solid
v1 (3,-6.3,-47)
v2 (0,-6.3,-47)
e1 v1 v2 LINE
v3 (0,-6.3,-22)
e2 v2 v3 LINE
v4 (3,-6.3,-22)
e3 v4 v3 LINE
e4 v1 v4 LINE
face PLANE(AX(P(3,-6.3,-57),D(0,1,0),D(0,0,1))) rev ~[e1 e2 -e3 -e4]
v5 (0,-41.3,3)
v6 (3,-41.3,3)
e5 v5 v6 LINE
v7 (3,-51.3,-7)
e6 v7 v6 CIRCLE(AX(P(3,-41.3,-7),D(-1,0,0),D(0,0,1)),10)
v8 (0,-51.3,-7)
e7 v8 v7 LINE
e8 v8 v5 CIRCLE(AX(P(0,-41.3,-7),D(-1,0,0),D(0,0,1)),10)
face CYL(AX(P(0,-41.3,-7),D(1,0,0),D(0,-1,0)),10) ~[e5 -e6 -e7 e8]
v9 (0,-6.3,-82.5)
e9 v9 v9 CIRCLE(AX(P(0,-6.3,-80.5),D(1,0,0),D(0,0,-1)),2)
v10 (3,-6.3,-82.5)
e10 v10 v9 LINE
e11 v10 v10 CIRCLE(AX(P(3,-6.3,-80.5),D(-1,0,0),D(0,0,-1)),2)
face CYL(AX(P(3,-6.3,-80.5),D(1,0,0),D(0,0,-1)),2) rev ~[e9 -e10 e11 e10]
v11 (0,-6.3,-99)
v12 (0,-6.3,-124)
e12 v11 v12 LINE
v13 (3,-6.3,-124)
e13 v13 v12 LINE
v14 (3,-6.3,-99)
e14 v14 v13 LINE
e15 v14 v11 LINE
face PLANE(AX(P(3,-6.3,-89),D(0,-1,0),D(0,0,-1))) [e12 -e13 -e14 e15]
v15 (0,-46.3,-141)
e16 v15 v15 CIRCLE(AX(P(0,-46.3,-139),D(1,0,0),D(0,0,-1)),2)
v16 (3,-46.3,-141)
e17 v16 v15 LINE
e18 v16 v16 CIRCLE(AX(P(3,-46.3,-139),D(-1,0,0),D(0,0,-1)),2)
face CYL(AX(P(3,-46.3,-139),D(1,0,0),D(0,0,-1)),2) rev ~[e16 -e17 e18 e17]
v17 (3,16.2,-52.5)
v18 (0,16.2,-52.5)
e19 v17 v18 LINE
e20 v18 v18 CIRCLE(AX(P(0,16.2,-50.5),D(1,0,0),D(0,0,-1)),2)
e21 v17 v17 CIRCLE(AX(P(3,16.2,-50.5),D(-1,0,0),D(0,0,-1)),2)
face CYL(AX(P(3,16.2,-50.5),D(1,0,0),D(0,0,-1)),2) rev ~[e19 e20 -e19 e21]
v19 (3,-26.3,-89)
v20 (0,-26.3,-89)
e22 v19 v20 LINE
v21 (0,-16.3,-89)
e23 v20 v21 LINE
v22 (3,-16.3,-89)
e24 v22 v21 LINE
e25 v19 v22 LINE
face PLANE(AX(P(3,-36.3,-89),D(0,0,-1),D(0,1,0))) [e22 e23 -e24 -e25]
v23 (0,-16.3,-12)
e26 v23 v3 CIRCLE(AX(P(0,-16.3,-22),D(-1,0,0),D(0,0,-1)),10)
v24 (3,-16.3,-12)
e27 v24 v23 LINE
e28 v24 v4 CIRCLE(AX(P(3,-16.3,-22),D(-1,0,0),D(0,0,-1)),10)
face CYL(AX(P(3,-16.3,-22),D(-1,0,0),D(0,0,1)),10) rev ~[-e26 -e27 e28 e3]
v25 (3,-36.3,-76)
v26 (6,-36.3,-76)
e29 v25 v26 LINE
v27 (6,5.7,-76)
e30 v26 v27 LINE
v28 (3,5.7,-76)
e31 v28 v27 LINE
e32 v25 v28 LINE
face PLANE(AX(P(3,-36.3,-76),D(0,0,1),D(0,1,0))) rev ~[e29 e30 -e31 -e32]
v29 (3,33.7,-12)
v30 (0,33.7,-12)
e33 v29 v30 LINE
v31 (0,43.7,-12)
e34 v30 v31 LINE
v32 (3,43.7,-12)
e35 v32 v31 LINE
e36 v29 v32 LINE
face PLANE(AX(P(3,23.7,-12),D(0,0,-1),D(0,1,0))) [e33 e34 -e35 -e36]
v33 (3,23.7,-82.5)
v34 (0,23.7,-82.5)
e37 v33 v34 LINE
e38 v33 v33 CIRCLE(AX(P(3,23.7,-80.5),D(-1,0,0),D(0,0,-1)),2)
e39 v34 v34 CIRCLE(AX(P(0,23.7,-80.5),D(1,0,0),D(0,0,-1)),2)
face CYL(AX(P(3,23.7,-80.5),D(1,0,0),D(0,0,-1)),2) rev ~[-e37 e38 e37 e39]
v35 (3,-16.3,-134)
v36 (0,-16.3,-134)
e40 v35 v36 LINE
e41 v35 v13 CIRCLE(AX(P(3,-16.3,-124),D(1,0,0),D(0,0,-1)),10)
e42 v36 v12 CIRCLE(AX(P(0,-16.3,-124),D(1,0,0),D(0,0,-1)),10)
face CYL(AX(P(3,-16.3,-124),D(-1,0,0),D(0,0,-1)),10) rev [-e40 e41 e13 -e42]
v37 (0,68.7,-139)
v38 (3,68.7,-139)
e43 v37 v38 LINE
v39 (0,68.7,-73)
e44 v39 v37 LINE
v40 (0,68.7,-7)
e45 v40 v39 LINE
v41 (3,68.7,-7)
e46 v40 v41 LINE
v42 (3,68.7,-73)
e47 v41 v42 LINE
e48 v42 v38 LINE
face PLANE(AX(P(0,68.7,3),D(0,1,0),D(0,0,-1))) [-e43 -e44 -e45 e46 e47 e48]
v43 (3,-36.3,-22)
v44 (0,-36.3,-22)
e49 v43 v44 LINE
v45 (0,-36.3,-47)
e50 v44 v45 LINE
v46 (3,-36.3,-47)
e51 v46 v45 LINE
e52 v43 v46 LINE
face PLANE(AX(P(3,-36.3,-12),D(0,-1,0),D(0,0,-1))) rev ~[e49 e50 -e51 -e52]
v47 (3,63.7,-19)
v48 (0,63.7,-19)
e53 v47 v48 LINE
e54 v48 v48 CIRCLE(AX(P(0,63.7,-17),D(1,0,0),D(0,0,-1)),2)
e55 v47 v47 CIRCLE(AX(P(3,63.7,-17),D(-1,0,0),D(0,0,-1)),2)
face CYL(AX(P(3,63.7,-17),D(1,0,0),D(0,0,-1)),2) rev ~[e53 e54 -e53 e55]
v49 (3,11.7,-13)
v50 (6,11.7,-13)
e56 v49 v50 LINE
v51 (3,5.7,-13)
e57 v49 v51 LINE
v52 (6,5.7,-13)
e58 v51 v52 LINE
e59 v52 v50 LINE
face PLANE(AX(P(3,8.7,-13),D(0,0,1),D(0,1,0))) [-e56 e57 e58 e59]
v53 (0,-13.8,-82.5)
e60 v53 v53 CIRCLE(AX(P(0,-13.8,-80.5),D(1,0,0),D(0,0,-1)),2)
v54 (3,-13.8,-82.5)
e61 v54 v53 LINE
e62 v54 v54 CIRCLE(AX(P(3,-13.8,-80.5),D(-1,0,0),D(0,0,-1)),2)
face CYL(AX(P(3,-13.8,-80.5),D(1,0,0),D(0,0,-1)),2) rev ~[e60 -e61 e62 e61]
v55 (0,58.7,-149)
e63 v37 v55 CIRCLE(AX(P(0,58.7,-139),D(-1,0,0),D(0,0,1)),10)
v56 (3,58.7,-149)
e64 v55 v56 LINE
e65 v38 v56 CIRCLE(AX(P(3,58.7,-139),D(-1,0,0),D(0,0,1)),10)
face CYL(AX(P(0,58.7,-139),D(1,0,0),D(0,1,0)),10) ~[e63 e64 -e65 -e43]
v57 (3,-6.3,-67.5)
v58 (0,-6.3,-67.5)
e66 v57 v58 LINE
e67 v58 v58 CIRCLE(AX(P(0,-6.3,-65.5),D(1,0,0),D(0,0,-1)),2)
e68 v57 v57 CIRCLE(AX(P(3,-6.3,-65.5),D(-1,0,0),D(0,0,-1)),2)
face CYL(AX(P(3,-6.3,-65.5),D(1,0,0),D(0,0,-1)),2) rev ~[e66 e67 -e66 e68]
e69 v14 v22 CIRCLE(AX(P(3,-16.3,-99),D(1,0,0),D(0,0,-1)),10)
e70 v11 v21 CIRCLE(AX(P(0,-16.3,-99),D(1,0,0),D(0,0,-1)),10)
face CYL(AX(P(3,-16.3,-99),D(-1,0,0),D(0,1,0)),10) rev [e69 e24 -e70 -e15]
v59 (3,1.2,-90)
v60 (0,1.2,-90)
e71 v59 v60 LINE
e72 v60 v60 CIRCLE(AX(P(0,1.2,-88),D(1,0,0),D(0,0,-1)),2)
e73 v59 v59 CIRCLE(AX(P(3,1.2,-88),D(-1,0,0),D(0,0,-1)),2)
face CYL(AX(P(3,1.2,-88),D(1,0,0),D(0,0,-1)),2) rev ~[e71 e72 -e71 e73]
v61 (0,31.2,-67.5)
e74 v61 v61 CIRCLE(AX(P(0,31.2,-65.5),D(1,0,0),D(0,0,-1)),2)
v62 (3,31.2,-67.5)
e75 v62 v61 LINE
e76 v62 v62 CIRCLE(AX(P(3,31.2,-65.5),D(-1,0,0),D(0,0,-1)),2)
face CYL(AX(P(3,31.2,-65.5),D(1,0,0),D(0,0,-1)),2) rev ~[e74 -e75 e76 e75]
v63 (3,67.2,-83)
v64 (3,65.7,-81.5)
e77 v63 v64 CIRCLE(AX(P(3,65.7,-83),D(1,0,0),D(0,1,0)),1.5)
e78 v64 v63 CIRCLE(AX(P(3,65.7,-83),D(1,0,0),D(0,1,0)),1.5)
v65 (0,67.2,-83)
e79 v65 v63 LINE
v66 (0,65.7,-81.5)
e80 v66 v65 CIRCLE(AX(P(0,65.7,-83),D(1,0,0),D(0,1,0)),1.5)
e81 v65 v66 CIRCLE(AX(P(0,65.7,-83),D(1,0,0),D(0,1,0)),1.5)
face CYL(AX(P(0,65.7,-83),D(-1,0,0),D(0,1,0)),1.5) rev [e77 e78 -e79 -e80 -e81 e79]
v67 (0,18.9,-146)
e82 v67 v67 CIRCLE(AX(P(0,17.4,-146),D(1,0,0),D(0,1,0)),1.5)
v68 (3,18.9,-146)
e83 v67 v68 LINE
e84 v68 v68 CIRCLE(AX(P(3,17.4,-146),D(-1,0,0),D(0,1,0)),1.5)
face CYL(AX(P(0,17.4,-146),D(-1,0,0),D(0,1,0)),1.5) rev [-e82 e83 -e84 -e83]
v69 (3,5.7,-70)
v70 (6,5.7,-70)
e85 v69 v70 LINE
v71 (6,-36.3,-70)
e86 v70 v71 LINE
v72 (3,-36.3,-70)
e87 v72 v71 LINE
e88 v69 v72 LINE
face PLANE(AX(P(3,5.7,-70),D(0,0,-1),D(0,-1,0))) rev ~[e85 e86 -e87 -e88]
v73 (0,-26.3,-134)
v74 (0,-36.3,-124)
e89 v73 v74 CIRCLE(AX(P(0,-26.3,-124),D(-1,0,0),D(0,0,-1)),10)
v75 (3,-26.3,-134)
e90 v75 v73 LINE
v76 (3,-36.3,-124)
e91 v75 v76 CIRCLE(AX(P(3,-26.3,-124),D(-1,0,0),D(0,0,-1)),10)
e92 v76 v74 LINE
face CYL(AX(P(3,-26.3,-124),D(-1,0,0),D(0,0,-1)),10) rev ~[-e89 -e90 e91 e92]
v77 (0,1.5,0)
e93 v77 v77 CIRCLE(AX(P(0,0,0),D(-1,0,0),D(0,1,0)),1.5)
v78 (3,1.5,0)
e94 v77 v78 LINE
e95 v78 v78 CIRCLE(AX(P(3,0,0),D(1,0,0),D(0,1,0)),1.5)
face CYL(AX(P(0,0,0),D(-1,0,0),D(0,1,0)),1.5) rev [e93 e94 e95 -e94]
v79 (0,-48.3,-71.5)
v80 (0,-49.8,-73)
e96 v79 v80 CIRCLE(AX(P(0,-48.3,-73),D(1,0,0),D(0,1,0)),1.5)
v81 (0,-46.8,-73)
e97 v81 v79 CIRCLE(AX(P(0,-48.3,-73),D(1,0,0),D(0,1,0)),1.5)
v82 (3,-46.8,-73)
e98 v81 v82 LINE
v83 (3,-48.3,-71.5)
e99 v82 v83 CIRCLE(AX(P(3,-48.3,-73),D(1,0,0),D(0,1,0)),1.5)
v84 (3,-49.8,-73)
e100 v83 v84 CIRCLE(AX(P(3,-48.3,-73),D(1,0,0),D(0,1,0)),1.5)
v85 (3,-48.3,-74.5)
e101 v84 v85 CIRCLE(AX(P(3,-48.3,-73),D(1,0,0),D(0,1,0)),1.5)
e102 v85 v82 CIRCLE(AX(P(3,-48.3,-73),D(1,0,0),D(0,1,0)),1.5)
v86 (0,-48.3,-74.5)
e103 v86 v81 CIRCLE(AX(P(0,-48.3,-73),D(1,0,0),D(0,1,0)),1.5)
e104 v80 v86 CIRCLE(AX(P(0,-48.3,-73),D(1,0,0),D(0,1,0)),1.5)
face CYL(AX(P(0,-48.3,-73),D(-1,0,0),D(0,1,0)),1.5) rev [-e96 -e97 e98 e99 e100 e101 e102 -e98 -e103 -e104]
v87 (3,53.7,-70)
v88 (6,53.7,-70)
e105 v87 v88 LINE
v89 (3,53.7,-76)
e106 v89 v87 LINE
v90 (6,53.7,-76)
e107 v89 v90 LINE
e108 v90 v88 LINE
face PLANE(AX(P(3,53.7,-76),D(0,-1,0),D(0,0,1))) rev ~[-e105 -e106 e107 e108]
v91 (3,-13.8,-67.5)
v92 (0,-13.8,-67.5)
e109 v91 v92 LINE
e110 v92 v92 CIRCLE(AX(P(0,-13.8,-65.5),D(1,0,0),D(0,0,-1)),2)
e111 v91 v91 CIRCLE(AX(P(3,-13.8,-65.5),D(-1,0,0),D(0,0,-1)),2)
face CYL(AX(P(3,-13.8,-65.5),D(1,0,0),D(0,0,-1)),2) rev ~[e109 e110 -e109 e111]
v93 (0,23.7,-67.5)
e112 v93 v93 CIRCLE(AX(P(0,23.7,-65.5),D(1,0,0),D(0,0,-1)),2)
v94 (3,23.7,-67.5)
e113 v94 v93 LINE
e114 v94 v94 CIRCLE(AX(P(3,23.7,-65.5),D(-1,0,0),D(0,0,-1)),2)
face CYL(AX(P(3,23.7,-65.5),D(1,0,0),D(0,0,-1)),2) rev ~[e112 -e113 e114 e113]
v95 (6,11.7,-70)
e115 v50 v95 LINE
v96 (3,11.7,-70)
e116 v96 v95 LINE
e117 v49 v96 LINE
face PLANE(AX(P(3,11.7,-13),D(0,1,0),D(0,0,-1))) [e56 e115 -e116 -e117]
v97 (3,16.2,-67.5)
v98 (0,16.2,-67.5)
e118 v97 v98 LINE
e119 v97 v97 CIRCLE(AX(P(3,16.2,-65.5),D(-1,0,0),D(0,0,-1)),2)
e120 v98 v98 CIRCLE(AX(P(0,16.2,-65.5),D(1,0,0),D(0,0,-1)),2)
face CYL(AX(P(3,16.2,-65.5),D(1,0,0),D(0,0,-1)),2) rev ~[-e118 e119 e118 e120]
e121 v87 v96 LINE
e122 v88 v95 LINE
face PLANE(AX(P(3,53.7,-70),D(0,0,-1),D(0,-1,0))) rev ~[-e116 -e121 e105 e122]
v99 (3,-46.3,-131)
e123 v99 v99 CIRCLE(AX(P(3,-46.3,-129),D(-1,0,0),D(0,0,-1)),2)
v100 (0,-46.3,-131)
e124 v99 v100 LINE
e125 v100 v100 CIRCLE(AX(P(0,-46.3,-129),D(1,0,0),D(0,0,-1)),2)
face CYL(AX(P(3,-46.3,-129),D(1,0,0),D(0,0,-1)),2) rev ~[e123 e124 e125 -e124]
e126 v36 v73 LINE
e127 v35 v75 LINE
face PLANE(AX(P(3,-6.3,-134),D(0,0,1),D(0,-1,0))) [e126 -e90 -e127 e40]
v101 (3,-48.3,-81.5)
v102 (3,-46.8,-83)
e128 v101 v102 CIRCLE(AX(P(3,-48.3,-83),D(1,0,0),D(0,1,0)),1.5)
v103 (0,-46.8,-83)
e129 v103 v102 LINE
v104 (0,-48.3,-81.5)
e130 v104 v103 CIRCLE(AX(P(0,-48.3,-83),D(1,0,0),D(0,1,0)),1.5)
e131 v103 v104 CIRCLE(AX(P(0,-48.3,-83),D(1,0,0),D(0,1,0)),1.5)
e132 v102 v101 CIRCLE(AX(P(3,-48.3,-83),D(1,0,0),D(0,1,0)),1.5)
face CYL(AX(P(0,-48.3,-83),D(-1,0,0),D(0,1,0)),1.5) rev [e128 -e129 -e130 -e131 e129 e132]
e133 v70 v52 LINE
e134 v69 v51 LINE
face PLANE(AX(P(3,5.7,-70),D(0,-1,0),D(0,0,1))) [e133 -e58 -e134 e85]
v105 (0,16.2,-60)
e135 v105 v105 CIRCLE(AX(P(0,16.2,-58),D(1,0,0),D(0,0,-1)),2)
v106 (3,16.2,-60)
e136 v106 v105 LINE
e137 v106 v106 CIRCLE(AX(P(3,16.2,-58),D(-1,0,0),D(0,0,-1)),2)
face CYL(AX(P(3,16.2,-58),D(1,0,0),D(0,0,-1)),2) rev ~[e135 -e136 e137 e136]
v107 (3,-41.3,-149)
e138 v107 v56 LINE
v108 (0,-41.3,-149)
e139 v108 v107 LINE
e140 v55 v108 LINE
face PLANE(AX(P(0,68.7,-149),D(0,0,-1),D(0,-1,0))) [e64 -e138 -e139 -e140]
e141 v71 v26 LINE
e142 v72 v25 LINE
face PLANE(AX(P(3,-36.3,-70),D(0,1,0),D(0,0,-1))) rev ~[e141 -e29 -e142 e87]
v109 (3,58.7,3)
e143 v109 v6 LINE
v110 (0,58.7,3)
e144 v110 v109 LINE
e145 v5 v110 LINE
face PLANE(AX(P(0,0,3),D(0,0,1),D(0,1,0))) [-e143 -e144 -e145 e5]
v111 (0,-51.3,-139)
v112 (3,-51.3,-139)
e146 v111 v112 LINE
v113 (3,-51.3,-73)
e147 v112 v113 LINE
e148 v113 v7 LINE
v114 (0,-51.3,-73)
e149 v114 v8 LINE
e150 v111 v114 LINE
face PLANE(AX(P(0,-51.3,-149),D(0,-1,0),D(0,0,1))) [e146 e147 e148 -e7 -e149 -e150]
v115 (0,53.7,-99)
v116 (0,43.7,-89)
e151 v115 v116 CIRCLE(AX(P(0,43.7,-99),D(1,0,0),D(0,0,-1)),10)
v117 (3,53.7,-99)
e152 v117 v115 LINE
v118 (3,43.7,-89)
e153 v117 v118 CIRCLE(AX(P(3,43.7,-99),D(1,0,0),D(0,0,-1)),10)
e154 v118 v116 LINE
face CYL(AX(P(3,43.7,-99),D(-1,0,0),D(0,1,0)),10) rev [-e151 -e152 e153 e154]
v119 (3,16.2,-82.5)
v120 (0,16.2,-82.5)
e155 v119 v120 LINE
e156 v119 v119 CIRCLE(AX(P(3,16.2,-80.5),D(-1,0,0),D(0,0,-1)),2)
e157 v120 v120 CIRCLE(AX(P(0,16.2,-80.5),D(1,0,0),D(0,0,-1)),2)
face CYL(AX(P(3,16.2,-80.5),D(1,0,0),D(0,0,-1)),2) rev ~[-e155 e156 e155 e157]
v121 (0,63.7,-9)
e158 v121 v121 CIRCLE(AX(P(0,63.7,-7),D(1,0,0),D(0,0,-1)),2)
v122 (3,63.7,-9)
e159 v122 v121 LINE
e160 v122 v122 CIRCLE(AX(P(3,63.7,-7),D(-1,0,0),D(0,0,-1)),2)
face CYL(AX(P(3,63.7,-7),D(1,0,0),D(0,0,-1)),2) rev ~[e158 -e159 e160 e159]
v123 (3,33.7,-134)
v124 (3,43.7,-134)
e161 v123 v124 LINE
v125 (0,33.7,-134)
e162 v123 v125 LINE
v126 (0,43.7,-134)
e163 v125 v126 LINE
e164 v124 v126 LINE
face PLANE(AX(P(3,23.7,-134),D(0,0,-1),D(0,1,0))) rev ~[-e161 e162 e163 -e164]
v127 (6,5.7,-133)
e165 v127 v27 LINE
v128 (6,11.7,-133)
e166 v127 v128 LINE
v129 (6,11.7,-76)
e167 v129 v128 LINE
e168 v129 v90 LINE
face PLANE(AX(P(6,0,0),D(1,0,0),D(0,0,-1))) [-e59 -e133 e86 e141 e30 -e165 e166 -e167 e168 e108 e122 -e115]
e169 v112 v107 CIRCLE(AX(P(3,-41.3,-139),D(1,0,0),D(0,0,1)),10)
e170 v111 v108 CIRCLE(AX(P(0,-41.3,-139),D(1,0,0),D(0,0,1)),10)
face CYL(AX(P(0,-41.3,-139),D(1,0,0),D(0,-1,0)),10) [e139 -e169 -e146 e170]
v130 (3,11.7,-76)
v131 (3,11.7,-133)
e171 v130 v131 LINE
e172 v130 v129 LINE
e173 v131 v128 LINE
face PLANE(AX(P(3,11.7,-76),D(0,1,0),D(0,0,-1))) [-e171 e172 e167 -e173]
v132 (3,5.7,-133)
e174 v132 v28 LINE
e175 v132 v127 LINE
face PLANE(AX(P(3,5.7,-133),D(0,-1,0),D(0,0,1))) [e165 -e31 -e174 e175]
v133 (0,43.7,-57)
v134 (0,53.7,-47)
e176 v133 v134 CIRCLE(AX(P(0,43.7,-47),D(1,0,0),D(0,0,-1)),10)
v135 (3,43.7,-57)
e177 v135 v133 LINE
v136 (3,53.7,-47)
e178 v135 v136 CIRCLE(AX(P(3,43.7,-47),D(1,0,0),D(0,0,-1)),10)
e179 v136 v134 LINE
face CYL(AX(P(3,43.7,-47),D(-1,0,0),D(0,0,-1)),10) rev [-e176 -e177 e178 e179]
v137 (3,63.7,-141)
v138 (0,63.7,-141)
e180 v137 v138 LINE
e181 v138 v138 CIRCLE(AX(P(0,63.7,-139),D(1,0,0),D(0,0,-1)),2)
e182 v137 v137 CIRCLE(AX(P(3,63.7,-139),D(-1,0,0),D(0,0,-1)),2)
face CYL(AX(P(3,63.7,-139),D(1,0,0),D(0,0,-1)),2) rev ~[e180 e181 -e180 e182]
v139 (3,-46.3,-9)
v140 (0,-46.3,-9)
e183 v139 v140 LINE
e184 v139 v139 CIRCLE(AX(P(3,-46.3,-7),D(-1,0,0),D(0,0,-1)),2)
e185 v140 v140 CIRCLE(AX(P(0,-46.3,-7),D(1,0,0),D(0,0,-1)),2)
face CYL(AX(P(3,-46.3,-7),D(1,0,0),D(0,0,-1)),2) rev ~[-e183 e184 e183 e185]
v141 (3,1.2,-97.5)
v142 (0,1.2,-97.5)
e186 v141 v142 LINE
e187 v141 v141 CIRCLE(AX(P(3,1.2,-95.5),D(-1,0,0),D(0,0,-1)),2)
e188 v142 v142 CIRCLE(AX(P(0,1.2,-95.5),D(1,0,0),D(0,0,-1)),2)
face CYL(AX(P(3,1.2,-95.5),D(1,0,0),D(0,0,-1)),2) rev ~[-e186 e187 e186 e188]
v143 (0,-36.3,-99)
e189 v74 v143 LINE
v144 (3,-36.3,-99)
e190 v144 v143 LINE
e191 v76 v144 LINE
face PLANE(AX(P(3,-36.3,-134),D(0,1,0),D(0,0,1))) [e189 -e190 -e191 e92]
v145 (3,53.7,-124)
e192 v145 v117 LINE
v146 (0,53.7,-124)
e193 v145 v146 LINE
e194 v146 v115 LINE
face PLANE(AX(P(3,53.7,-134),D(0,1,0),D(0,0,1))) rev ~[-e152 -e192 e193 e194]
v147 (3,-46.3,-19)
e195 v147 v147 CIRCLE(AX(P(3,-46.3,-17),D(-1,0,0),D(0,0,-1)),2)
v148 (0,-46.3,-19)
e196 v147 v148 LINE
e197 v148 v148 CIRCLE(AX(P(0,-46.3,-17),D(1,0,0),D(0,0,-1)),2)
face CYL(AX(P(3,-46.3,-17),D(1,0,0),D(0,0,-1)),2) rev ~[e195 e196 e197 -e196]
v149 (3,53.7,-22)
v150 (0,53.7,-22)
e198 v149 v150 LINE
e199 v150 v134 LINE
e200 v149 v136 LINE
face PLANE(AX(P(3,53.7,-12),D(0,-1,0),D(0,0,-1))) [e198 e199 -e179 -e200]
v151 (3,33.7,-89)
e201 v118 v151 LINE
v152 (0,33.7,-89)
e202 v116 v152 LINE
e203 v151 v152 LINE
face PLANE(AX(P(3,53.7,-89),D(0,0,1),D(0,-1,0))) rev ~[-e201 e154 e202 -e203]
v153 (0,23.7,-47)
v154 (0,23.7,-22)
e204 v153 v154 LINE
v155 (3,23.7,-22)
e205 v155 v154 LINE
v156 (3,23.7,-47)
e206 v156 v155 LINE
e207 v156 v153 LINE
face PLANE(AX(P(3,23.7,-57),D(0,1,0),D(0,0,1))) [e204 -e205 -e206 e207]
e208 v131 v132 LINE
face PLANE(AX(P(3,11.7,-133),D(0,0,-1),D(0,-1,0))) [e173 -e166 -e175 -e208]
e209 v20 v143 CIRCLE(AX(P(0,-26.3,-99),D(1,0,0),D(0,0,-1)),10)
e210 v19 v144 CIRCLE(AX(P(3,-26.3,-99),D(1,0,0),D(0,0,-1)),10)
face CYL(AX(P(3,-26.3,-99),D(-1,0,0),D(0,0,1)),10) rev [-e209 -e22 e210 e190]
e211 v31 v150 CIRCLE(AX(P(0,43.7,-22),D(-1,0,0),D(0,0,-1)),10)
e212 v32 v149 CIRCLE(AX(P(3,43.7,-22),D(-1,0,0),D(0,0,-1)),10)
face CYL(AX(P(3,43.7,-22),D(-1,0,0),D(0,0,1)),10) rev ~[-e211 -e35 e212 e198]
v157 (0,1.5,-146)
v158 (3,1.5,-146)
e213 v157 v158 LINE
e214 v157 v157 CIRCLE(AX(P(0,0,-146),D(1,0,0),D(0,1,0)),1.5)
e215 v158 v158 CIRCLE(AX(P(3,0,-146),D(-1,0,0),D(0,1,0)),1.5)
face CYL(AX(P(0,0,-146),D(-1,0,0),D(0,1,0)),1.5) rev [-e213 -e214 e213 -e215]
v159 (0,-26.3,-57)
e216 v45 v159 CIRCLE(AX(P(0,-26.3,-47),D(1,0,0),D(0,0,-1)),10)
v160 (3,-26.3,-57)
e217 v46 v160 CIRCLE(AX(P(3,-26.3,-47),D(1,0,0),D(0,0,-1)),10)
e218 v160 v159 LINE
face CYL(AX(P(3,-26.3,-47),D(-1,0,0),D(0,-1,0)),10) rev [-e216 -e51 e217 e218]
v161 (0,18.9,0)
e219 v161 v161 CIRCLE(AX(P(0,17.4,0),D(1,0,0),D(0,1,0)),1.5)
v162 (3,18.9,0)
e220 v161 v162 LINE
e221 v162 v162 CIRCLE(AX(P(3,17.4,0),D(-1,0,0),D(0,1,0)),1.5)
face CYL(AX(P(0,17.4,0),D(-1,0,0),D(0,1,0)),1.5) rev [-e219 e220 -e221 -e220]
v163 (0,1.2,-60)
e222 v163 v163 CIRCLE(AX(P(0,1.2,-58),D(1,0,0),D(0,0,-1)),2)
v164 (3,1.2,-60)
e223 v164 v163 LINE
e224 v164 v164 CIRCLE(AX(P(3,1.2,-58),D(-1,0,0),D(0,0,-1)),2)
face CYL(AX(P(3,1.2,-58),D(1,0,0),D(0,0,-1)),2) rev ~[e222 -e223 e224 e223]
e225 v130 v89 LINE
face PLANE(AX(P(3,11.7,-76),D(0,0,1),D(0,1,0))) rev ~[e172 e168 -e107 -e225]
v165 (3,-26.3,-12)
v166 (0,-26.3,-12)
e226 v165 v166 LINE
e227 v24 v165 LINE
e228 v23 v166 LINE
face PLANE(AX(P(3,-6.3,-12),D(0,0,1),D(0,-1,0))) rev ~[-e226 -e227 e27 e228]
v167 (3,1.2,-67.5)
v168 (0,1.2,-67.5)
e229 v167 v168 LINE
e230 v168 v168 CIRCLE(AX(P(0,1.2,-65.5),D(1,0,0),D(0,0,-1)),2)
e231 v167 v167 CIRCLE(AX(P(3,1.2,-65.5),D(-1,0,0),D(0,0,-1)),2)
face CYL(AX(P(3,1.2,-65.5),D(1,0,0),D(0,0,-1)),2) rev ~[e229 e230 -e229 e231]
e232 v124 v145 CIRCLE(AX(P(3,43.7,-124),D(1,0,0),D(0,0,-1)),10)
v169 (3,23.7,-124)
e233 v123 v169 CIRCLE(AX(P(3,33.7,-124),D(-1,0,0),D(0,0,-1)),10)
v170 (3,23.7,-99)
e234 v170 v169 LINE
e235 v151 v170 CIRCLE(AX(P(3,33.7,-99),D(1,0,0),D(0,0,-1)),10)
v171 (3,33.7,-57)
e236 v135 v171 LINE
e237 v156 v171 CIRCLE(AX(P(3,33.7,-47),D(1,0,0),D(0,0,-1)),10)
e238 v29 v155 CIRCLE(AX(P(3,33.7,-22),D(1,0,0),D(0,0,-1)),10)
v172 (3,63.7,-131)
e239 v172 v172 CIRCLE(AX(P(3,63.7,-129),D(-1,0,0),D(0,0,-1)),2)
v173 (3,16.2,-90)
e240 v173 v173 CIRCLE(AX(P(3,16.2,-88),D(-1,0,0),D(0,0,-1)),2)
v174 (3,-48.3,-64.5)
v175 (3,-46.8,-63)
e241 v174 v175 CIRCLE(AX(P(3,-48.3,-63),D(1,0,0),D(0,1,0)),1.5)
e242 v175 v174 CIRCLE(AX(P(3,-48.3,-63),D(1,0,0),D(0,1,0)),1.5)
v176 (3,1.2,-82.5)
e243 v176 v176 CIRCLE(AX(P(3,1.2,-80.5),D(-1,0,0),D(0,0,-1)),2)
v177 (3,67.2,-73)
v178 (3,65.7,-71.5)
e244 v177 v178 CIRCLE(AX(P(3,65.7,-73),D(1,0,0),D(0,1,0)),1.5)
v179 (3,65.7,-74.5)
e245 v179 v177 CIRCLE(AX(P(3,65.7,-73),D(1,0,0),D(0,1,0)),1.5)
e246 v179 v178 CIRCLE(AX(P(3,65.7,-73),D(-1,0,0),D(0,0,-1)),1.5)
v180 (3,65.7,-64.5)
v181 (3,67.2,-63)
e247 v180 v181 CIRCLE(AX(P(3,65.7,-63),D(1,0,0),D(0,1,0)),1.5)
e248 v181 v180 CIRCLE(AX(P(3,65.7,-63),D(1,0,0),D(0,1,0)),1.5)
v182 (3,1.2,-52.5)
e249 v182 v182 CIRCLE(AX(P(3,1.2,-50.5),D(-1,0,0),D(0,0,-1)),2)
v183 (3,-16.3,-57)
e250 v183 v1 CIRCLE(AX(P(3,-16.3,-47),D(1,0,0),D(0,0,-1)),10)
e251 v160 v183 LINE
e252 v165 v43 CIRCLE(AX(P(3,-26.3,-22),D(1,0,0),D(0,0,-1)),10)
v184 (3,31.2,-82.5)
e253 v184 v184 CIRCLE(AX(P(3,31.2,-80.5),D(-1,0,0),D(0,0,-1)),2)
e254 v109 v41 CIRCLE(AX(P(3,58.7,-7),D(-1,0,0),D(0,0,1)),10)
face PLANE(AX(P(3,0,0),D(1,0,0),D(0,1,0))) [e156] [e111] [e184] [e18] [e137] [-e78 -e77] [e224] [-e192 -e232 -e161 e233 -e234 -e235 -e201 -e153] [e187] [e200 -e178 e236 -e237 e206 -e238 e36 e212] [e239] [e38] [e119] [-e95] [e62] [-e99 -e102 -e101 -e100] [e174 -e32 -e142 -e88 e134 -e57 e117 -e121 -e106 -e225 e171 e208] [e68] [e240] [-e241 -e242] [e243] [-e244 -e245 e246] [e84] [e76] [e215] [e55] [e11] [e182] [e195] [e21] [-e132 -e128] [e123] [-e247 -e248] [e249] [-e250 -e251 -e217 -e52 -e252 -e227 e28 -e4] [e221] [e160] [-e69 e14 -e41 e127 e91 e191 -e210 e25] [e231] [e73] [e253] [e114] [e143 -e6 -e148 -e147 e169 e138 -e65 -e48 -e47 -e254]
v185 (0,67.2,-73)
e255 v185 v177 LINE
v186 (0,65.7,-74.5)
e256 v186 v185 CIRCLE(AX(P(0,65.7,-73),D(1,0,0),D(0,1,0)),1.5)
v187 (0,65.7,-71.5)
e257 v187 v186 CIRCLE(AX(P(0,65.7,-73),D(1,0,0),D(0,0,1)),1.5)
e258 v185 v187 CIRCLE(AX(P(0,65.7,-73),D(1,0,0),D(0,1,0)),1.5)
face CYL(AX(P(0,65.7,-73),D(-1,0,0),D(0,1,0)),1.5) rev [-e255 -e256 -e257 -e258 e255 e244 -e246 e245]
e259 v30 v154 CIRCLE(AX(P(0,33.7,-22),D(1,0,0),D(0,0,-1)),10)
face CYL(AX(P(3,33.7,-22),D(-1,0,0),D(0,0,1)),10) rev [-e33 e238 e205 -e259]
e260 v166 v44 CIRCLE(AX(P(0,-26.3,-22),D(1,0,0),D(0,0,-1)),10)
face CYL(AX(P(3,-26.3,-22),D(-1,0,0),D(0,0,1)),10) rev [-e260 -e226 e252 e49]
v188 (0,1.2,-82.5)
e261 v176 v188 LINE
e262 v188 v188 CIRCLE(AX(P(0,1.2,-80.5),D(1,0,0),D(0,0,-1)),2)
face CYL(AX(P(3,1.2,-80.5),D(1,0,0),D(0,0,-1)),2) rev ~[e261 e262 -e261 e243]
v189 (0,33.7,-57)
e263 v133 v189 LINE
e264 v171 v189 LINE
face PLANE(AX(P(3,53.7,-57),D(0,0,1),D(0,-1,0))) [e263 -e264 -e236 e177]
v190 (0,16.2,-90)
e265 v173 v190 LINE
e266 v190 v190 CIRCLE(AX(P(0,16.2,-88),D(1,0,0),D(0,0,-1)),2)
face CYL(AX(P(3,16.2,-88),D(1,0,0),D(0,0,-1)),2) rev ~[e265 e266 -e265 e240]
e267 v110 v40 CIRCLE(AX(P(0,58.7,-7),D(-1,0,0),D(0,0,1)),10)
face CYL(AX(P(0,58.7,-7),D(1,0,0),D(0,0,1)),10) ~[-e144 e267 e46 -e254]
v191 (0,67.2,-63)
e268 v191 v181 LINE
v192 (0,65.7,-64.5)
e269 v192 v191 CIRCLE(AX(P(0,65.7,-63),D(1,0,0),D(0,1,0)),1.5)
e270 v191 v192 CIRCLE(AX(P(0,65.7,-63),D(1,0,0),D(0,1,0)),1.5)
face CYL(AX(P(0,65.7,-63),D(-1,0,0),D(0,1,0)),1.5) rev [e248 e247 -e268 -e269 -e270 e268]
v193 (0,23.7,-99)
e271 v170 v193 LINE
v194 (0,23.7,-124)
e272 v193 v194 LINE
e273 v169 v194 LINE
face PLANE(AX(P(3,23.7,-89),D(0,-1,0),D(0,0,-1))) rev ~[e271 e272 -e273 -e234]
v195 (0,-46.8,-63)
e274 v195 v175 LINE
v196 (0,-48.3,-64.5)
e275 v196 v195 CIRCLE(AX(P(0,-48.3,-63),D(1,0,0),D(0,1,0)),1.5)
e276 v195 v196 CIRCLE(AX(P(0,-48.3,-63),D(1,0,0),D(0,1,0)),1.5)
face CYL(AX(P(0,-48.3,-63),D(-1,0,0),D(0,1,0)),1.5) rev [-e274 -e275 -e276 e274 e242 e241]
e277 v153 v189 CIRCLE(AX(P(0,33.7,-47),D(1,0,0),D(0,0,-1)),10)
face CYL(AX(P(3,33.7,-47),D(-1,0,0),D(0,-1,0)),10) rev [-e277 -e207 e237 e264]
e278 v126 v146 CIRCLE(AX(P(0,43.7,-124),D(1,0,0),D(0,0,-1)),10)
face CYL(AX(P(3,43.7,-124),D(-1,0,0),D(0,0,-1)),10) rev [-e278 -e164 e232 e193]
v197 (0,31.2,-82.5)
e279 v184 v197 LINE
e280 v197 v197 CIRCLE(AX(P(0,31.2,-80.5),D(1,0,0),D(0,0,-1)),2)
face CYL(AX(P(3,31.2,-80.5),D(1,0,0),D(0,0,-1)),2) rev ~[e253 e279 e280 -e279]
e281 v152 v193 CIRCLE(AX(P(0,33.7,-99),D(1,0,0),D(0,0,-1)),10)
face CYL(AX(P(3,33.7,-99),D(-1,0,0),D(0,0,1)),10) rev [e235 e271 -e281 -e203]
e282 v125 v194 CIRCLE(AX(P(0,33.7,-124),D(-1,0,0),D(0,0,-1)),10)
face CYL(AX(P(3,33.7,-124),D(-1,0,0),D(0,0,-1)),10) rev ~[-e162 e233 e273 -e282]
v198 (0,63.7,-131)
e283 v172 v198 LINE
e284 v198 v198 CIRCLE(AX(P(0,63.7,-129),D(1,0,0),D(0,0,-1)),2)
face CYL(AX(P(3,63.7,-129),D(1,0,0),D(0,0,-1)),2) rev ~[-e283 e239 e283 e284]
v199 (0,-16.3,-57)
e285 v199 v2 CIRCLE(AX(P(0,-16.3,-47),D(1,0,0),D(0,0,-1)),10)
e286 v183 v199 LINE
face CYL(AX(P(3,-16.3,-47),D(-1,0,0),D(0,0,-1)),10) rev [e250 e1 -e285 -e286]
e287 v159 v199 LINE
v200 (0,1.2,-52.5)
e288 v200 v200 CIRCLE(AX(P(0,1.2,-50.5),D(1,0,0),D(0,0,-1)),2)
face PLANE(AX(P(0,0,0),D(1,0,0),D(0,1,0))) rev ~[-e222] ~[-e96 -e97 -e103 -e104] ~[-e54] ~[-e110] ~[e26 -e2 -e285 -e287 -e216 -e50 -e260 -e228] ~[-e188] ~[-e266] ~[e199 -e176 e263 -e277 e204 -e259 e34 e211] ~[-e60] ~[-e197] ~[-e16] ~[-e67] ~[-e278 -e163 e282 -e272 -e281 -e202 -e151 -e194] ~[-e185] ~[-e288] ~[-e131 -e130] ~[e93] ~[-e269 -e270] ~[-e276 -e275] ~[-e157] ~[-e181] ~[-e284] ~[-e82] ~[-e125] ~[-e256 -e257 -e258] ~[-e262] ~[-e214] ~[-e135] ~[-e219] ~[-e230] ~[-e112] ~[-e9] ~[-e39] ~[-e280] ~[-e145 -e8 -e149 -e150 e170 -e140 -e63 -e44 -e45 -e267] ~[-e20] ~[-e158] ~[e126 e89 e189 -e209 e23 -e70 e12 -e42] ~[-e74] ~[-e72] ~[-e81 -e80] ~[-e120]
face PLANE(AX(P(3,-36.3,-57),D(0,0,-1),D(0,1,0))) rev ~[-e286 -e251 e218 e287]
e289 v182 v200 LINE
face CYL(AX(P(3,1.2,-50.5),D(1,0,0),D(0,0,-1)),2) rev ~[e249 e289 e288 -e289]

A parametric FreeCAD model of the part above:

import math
import FreeCAD as App
import Part
import Sketcher
from FreeCAD import Vector
Q = App.Units.Quantity


def edges_at(feature, points):
    """Names of the edges that pass closest to the given points."""
    edges = feature.Shape.Edges
    near = lambda p: min(range(len(edges)), key=lambda i: edges[i].distToShape(Part.Vertex(*p))[0])
    return sorted({f"Edge{near(p) + 1}" for p in points})

doc = App.newDocument("Part")
body = doc.addObject("PartDesign::Body", "Body")

# Sketch on YZ plane
sketch1 = body.newObject("Sketcher::SketchObject", "Sketch")
sketch1.AttachmentSupport = (doc.getObject("YZ_Plane"), [""])
sketch1.MapMode = "FlatFace"
sketch1.addGeometry([
    Part.LineSegment(Vector(-51.3, 3, 0), Vector(-51.3, -73, 0)),  # 0
    Part.LineSegment(Vector(-51.3, -73, 0), Vector(-51.3, -149, 0)),  # 1
    Part.LineSegment(Vector(-51.3, -149, 0), Vector(68.7, -149, 0)),  # 2
    Part.LineSegment(Vector(68.7, -149, 0), Vector(68.7, -73, 0)),  # 3
    Part.LineSegment(Vector(68.7, -73, 0), Vector(68.7, 3, 0)),  # 4
    Part.LineSegment(Vector(68.7, 3, 0), Vector(-51.3, 3, 0)),  # 5
    Part.Circle(Vector(0, 0, 0), Vector(0, 0, 1), 1.5),  # 6
    Part.Circle(Vector(17.4, -146, 0), Vector(0, 0, 1), 1.5),  # 7
    Part.Circle(Vector(17.4, 0, 0), Vector(0, 0, 1), 1.5),  # 8
    Part.Circle(Vector(65.7, -83, 0), Vector(0, 0, 1), 1.5),  # 9
    Part.ArcOfCircle(Part.Circle(Vector(65.7, -73, 0), Vector(0, 0, 1), 1.5), math.radians(0), math.radians(90)),  # 10
    Part.ArcOfCircle(Part.Circle(Vector(65.7, -73, 0), Vector(0, 0, 1), 1.5), math.radians(-90), math.radians(0)),  # 11
    Part.ArcOfCircle(Part.Circle(Vector(65.7, -73, 0), Vector(0, 0, 1), 1.5), math.radians(90), math.radians(270)),  # 12
    Part.Circle(Vector(65.7, -63, 0), Vector(0, 0, 1), 1.5),  # 13
    Part.Circle(Vector(0, -146, 0), Vector(0, 0, 1), 1.5),  # 14
    Part.Circle(Vector(-48.3, -83, 0), Vector(0, 0, 1), 1.5),  # 15
    Part.ArcOfCircle(Part.Circle(Vector(-48.3, -73, 0), Vector(0, 0, 1), 1.5), math.radians(180), math.radians(270)),  # 16
    Part.ArcOfCircle(Part.Circle(Vector(-48.3, -73, 0), Vector(0, 0, 1), 1.5), math.radians(90), math.radians(180)),  # 17
    Part.ArcOfCircle(Part.Circle(Vector(-48.3, -73, 0), Vector(0, 0, 1), 1.5), math.radians(-90), math.radians(90)),  # 18
    Part.Circle(Vector(-48.3, -63, 0), Vector(0, 0, 1), 1.5),  # 19
], False)
sketch1.addConstraint([
    Sketcher.Constraint("Coincident", 0, 2, 1, 1),
    Sketcher.Constraint("Coincident", 1, 2, 2, 1),
    Sketcher.Constraint("Coincident", 2, 2, 3, 1),
    Sketcher.Constraint("Coincident", 3, 2, 4, 1),
    Sketcher.Constraint("Coincident", 4, 2, 5, 1),
    Sketcher.Constraint("Coincident", 5, 2, 0, 1),
    Sketcher.Constraint("Tangent", 10, 1, 11, 2),
    Sketcher.Constraint("Tangent", 11, 1, 12, 2),
    Sketcher.Constraint("Tangent", 12, 1, 10, 2),
    Sketcher.Constraint("Tangent", 16, 1, 17, 2),
    Sketcher.Constraint("Tangent", 17, 1, 18, 2),
    Sketcher.Constraint("Tangent", 18, 1, 16, 2),
    Sketcher.Constraint("Vertical", 0),
    Sketcher.Constraint("Vertical", 1),
    Sketcher.Constraint("Horizontal", 2),
    Sketcher.Constraint("Vertical", 3),
    Sketcher.Constraint("Vertical", 4),
    Sketcher.Constraint("Horizontal", 5),
    Sketcher.Constraint("Coincident", 6, 3, -1, 1),
    Sketcher.Constraint("Equal", 6, 7),
    Sketcher.Constraint("Equal", 7, 8),
    Sketcher.Constraint("Equal", 8, 9),
    Sketcher.Constraint("Equal", 9, 10),
    Sketcher.Constraint("Equal", 12, 13),
    Sketcher.Constraint("Equal", 13, 14),
    Sketcher.Constraint("Equal", 14, 15),
    Sketcher.Constraint("Equal", 15, 16),
    Sketcher.Constraint("Equal", 18, 19),
    Sketcher.Constraint("PointOnObject", 8, 3, -1),
    Sketcher.Constraint("PointOnObject", 14, 3, -2),
    Sketcher.Constraint("Horizontal", 7, 3, 14, 3),
    Sketcher.Constraint("Horizontal", 9, 3, 15, 3),
    Sketcher.Constraint("Horizontal", 12, 3, 16, 3),
    Sketcher.Constraint("Horizontal", 13, 3, 19, 3),
    Sketcher.Constraint("Horizontal", 18, 3, 0, 2),
    Sketcher.Constraint("Horizontal", 0, 2, 3, 2),
    Sketcher.Constraint("Horizontal", 3, 2, 10, 1),
    Sketcher.Constraint("Horizontal", 10, 1, 16, 1),
    Sketcher.Constraint("Vertical", 7, 3, 8, 3),
    Sketcher.Constraint("Vertical", 9, 3, 10, 3),
    Sketcher.Constraint("Vertical", 12, 3, 13, 3),
    Sketcher.Constraint("Vertical", 15, 3, 16, 3),
    Sketcher.Constraint("Vertical", 18, 3, 19, 3),
    Sketcher.Constraint("Vertical", 13, 3, 11, 1),
    Sketcher.Constraint("Vertical", 11, 1, 12, 1),
    Sketcher.Constraint("Vertical", 19, 3, 17, 1),
    Sketcher.Constraint("Vertical", 17, 1, 18, 1),
    Sketcher.Constraint("Equal", 0, 1),
    Sketcher.Constraint("Diameter", 6, Q("3 mm")),
    Sketcher.Constraint("DistanceY", 7, 3, -1, 1, Q("146 mm")),
    Sketcher.Constraint("DistanceY", -1, 1, 4, 2, Q("3 mm")),
    Sketcher.Constraint("DistanceY", 9, 3, 10, 3, Q("10 mm")),
    Sketcher.Constraint("DistanceY", 10, 3, 13, 3, Q("10 mm")),
    Sketcher.Constraint("DistanceX", 0, 2, 16, 3, Q("3 mm")),
    Sketcher.Constraint("DistanceY", 1, 2, 14, 3, Q("3 mm")),
    Sketcher.Constraint("DistanceX", 9, 3, 2, 2, Q("3 mm")),
    Sketcher.Constraint("DistanceX", -1, 1, 7, 3, Q("17.4 mm")),
    Sketcher.Constraint("DistanceX", 15, 3, -1, 1, Q("48.3 mm")),
    Sketcher.Constraint("DistanceX", 7, 3, 9, 3, Q("48.3 mm")),
])
pad1 = body.newObject("PartDesign::Pad", "Pad")
pad1.Profile = sketch1
pad1.Length = 3

# Sketch on YZ plane
sketch2 = body.newObject("Sketcher::SketchObject", "Sketch001")
sketch2.AttachmentSupport = (doc.getObject("YZ_Plane"), [""])
sketch2.MapMode = "FlatFace"
sketch2.AttachmentOffset = App.Placement(Vector(0, 0, 3), App.Rotation())
sketch2.addGeometry([
    Part.LineSegment(Vector(12, -13, 0), Vector(6, -13, 0)),  # 0
    Part.LineSegment(Vector(6, -13, 0), Vector(6, -70, 0)),  # 1
    Part.LineSegment(Vector(6, -70, 0), Vector(-36, -70, 0)),  # 2
    Part.LineSegment(Vector(-36, -70, 0), Vector(-36, -76, 0)),  # 3
    Part.LineSegment(Vector(-36, -76, 0), Vector(6, -76, 0)),  # 4
    Part.LineSegment(Vector(6, -76, 0), Vector(6, -133, 0)),  # 5
    Part.LineSegment(Vector(6, -133, 0), Vector(12, -133, 0)),  # 6
    Part.LineSegment(Vector(12, -133, 0), Vector(12, -76, 0)),  # 7
    Part.LineSegment(Vector(12, -76, 0), Vector(54, -76, 0)),  # 8
    Part.LineSegment(Vector(54, -76, 0), Vector(54, -70, 0)),  # 9
    Part.LineSegment(Vector(54, -70, 0), Vector(12, -70, 0)),  # 10
    Part.LineSegment(Vector(12, -70, 0), Vector(12, -13, 0)),  # 11
], False)
sketch2.addConstraint([
    Sketcher.Constraint("Coincident", 0, 2, 1, 1),
    Sketcher.Constraint("Coincident", 1, 2, 2, 1),
    Sketcher.Constraint("Coincident", 2, 2, 3, 1),
    Sketcher.Constraint("Coincident", 3, 2, 4, 1),
    Sketcher.Constraint("Coincident", 4, 2, 5, 1),
    Sketcher.Constraint("Coincident", 5, 2, 6, 1),
    Sketcher.Constraint("Coincident", 6, 2, 7, 1),
    Sketcher.Constraint("Coincident", 7, 2, 8, 1),
    Sketcher.Constraint("Coincident", 8, 2, 9, 1),
    Sketcher.Constraint("Coincident", 9, 2, 10, 1),
    Sketcher.Constraint("Coincident", 10, 2, 11, 1),
    Sketcher.Constraint("Coincident", 11, 2, 0, 1),
    Sketcher.Constraint("Horizontal", 0),
    Sketcher.Constraint("Vertical", 1),
    Sketcher.Constraint("Horizontal", 2),
    Sketcher.Constraint("Vertical", 3),
    Sketcher.Constraint("Horizontal", 4),
    Sketcher.Constraint("Vertical", 5),
    Sketcher.Constraint("Horizontal", 6),
    Sketcher.Constraint("Vertical", 7),
    Sketcher.Constraint("Horizontal", 8),
    Sketcher.Constraint("Vertical", 9),
    Sketcher.Constraint("Horizontal", 10),
    Sketcher.Constraint("Vertical", 11),
    Sketcher.Constraint("Horizontal", 4, 2, 7, 2),
    Sketcher.Constraint("Horizontal", 2, 2, 9, 2),
    Sketcher.Constraint("Vertical", 1, 2, 4, 2),
    Sketcher.Constraint("Vertical", 7, 2, 10, 2),
    Sketcher.Constraint("Equal", 4, 8),
    Sketcher.Constraint("Equal", 6, 3),
    Sketcher.Constraint("Equal", 1, 5),
    Sketcher.Constraint("DistanceX", 0, 2, 0, 1, Q("6 mm")),
    Sketcher.Constraint("DistanceY", 5, 2, 0, 2, Q("120 mm")),
    Sketcher.Constraint("DistanceX", 2, 2, 2, 1, Q("42 mm")),
    Sketcher.Constraint("DistanceY", 0, 2, -1, 1, Q("13 mm")),
    Sketcher.Constraint("DistanceX", -1, 1, 0, 2, Q("5.7 mm")),
])
pad2 = body.newObject("PartDesign::Pad", "Pad001")
pad2.Profile = sketch2
pad2.Length = 3

# Sketch on YZ plane
sketch3 = body.newObject("Sketcher::SketchObject", "Sketch002")
sketch3.AttachmentSupport = (doc.getObject("YZ_Plane"), [""])
sketch3.MapMode = "FlatFace"
sketch3.AttachmentOffset = App.Placement(Vector(0, 0, 3), App.Rotation())
sketch3.addGeometry([
    Part.LineSegment(Vector(54, -57, 0), Vector(54, -12, 0)),  # 0
    Part.LineSegment(Vector(54, -12, 0), Vector(24, -12, 0)),  # 1
    Part.LineSegment(Vector(24, -12, 0), Vector(24, -57, 0)),  # 2
    Part.LineSegment(Vector(24, -57, 0), Vector(54, -57, 0)),  # 3
    Part.LineSegment(Vector(-6, -12, 0), Vector(-36, -12, 0)),  # 4
    Part.LineSegment(Vector(-36, -12, 0), Vector(-36, -57, 0)),  # 5
    Part.LineSegment(Vector(-36, -57, 0), Vector(-6, -57, 0)),  # 6
    Part.LineSegment(Vector(-6, -57, 0), Vector(-6, -12, 0)),  # 7
    Part.LineSegment(Vector(-36, -89, 0), Vector(-36, -134, 0)),  # 8
    Part.LineSegment(Vector(-36, -134, 0), Vector(-6, -134, 0)),  # 9
    Part.LineSegment(Vector(-6, -134, 0), Vector(-6, -89, 0)),  # 10
    Part.LineSegment(Vector(-6, -89, 0), Vector(-36, -89, 0)),  # 11
    Part.LineSegment(Vector(24, -134, 0), Vector(54, -134, 0)),  # 12
    Part.LineSegment(Vector(54, -134, 0), Vector(54, -89, 0)),  # 13
    Part.LineSegment(Vector(54, -89, 0), Vector(24, -89, 0)),  # 14
    Part.LineSegment(Vector(24, -89, 0), Vector(24, -134, 0)),  # 15
], False)
sketch3.addConstraint([
    Sketcher.Constraint("Coincident", 0, 2, 1, 1),
    Sketcher.Constraint("Coincident", 1, 2, 2, 1),
    Sketcher.Constraint("Coincident", 2, 2, 3, 1),
    Sketcher.Constraint("Coincident", 3, 2, 0, 1),
    Sketcher.Constraint("Coincident", 4, 2, 5, 1),
    Sketcher.Constraint("Coincident", 5, 2, 6, 1),
    Sketcher.Constraint("Coincident", 6, 2, 7, 1),
    Sketcher.Constraint("Coincident", 7, 2, 4, 1),
    Sketcher.Constraint("Coincident", 8, 2, 9, 1),
    Sketcher.Constraint("Coincident", 9, 2, 10, 1),
    Sketcher.Constraint("Coincident", 10, 2, 11, 1),
    Sketcher.Constraint("Coincident", 11, 2, 8, 1),
    Sketcher.Constraint("Coincident", 12, 2, 13, 1),
    Sketcher.Constraint("Coincident", 13, 2, 14, 1),
    Sketcher.Constraint("Coincident", 14, 2, 15, 1),
    Sketcher.Constraint("Coincident", 15, 2, 12, 1),
    Sketcher.Constraint("Vertical", 0),
    Sketcher.Constraint("Horizontal", 1),
    Sketcher.Constraint("Vertical", 2),
    Sketcher.Constraint("Horizontal", 3),
    Sketcher.Constraint("Horizontal", 4),
    Sketcher.Constraint("Vertical", 5),
    Sketcher.Constraint("Horizontal", 6),
    Sketcher.Constraint("Vertical", 7),
    Sketcher.Constraint("Vertical", 8),
    Sketcher.Constraint("Horizontal", 9),
    Sketcher.Constraint("Vertical", 10),
    Sketcher.Constraint("Horizontal", 11),
    Sketcher.Constraint("Horizontal", 12),
    Sketcher.Constraint("Vertical", 13),
    Sketcher.Constraint("Horizontal", 14),
    Sketcher.Constraint("Vertical", 15),
    Sketcher.Constraint("Horizontal", 1, 2, 4, 2),
    Sketcher.Constraint("Horizontal", 3, 2, 5, 2),
    Sketcher.Constraint("Horizontal", 9, 2, 12, 2),
    Sketcher.Constraint("Horizontal", 11, 2, 13, 2),
    Sketcher.Constraint("Vertical", 5, 2, 8, 2),
    Sketcher.Constraint("Vertical", 7, 2, 9, 2),
    Sketcher.Constraint("Vertical", 3, 2, 12, 2),
    Sketcher.Constraint("Vertical", 2, 2, 14, 2),
    Sketcher.Constraint("Equal", 3, 4),
    Sketcher.Constraint("Equal", 7, 8),
    Sketcher.Constraint("DistanceX", 1, 2, 1, 1, Q("30 mm")),
    Sketcher.Constraint("DistanceY", 0, 1, 0, 2, Q("45 mm")),
    Sketcher.Constraint("DistanceX", 6, 2, 2, 2, Q("30 mm")),
    Sketcher.Constraint("DistanceY", 0, 2, -1, 1, Q("12 mm")),
    Sketcher.Constraint("DistanceY", 8, 2, -1, 1, Q("134 mm")),
    Sketcher.Constraint("DistanceX", -1, 1, 0, 2, Q("53.7 mm")),
])
pocket1 = body.newObject("PartDesign::Pocket", "Pocket")
pocket1.Profile = sketch3
pocket1.Length = 3
doc.recompute()

fillet = body.newObject("PartDesign::Fillet", "Fillet")
fillet.Base = (pocket1, edges_at(pocket1, [
    (1.5, 23.7, -134),
    (1.5, 53.7, -134),
    (1.5, 53.7, -89),
    (1.5, 23.7, -89),
    (1.5, 53.7, -57),
    (1.5, 23.7, -57),
    (1.5, 53.7, -12),
    (1.5, 23.7, -12),
    (1.5, -36.3, -57),
    (1.5, -6.3, -57),
    (1.5, -6.3, -12),
    (1.5, -36.3, -12),
    (1.5, -36.3, -134),
    (1.5, -6.3, -134),
    (1.5, -6.3, -89),
    (1.5, -36.3, -89),
]))
fillet.Radius = 10

# Sketch on YZ plane
sketch4 = body.newObject("Sketcher::SketchObject", "Sketch003")
sketch4.AttachmentSupport = (doc.getObject("YZ_Plane"), [""])
sketch4.MapMode = "FlatFace"
sketch4.AttachmentOffset = App.Placement(Vector(0, 0, 3), App.Rotation())
sketch4.addGeometry([
    Part.Circle(Vector(63.7, -7, 0), Vector(0, 0, 1), 2),  # 0
    Part.Circle(Vector(-46.3, -7, 0), Vector(0, 0, 1), 2),  # 1
    Part.Circle(Vector(63.7, -17, 0), Vector(0, 0, 1), 2),  # 2
    Part.Circle(Vector(-46.3, -139, 0), Vector(0, 0, 1), 2),  # 3
    Part.Circle(Vector(63.7, -129, 0), Vector(0, 0, 1), 2),  # 4
    Part.Circle(Vector(-46.3, -17, 0), Vector(0, 0, 1), 2),  # 5
    Part.Circle(Vector(-46.3, -129, 0), Vector(0, 0, 1), 2),  # 6
    Part.Circle(Vector(63.7, -139, 0), Vector(0, 0, 1), 2),  # 7
], False)
sketch4.addConstraint([
    Sketcher.Constraint("Equal", 0, 1),
    Sketcher.Constraint("Equal", 1, 2),
    Sketcher.Constraint("Equal", 2, 3),
    Sketcher.Constraint("Equal", 3, 4),
    Sketcher.Constraint("Equal", 4, 5),
    Sketcher.Constraint("Equal", 5, 6),
    Sketcher.Constraint("Equal", 6, 7),
    Sketcher.Constraint("Horizontal", 0, 3, 1, 3),
    Sketcher.Constraint("Horizontal", 2, 3, 5, 3),
    Sketcher.Constraint("Horizontal", 4, 3, 6, 3),
    Sketcher.Constraint("Horizontal", 3, 3, 7, 3),
    Sketcher.Constraint("Vertical", 0, 3, 2, 3),
    Sketcher.Constraint("Vertical", 1, 3, 3, 3),
    Sketcher.Constraint("Vertical", 2, 3, 4, 3),
    Sketcher.Constraint("Vertical", 3, 3, 5, 3),
    Sketcher.Constraint("Vertical", 5, 3, 6, 3),
    Sketcher.Constraint("Vertical", 4, 3, 7, 3),
    Sketcher.Constraint("Diameter", 0, Q("4 mm")),
    Sketcher.Constraint("DistanceY", 2, 3, 0, 3, Q("10 mm")),
    Sketcher.Constraint("DistanceY", 3, 3, 4, 3, Q("10 mm")),
    Sketcher.Constraint("DistanceY", 0, 3, -1, 1, Q("7 mm")),
    Sketcher.Constraint("DistanceY", 3, 3, -1, 1, Q("139 mm")),
    Sketcher.Constraint("DistanceX", 1, 3, 0, 3, Q("110 mm")),
    Sketcher.Constraint("DistanceX", -1, 1, 0, 3, Q("63.7 mm")),
])
pocket2 = body.newObject("PartDesign::Pocket", "Pocket001")
pocket2.Profile = sketch4
pocket2.Length = 10

# Sketch on YZ plane
sketch5 = body.newObject("Sketcher::SketchObject", "Sketch004")
sketch5.AttachmentSupport = (doc.getObject("YZ_Plane"), [""])
sketch5.MapMode = "FlatFace"
sketch5.AttachmentOffset = App.Placement(Vector(0, 0, 3), App.Rotation())
sketch5.addGeometry([
    Part.Circle(Vector(1.2, -65.5, 0), Vector(0, 0, 1), 2),  # 0
    Part.Circle(Vector(16.2, -65.5, 0), Vector(0, 0, 1), 2),  # 1
    Part.Circle(Vector(16.2, -58, 0), Vector(0, 0, 1), 2),  # 2
    Part.Circle(Vector(1.2, -58, 0), Vector(0, 0, 1), 2),  # 3
    Part.Circle(Vector(16.2, -50.5, 0), Vector(0, 0, 1), 2),  # 4
    Part.Circle(Vector(1.2, -50.5, 0), Vector(0, 0, 1), 2),  # 5
    Part.Circle(Vector(1.2, -80.5, 0), Vector(0, 0, 1), 2),  # 6
    Part.Circle(Vector(16.2, -80.5, 0), Vector(0, 0, 1), 2),  # 7
    Part.Circle(Vector(-6.3, -65.5, 0), Vector(0, 0, 1), 2),  # 8
    Part.Circle(Vector(23.7, -65.5, 0), Vector(0, 0, 1), 2),  # 9
    Part.Circle(Vector(-6.3, -80.5, 0), Vector(0, 0, 1), 2),  # 10
    Part.Circle(Vector(23.7, -80.5, 0), Vector(0, 0, 1), 2),  # 11
    Part.Circle(Vector(-13.8, -65.5, 0), Vector(0, 0, 1), 2),  # 12
    Part.Circle(Vector(1.2, -88, 0), Vector(0, 0, 1), 2),  # 13
    Part.Circle(Vector(31.2, -65.5, 0), Vector(0, 0, 1), 2),  # 14
    Part.Circle(Vector(16.2, -88, 0), Vector(0, 0, 1), 2),  # 15
    Part.Circle(Vector(-13.8, -80.5, 0), Vector(0, 0, 1), 2),  # 16
    Part.Circle(Vector(1.2, -95.5, 0), Vector(0, 0, 1), 2),  # 17
    Part.Circle(Vector(31.2, -80.5, 0), Vector(0, 0, 1), 2),  # 18
], False)
sketch5.addConstraint([
    Sketcher.Constraint("Equal", 0, 1),
    Sketcher.Constraint("Equal", 1, 2),
    Sketcher.Constraint("Equal", 2, 3),
    Sketcher.Constraint("Equal", 3, 4),
    Sketcher.Constraint("Equal", 4, 5),
    Sketcher.Constraint("Equal", 5, 6),
    Sketcher.Constraint("Equal", 6, 7),
    Sketcher.Constraint("Equal", 7, 8),
    Sketcher.Constraint("Equal", 8, 9),
    Sketcher.Constraint("Equal", 9, 10),
    Sketcher.Constraint("Equal", 10, 11),
    Sketcher.Constraint("Equal", 11, 12),
    Sketcher.Constraint("Equal", 12, 13),
    Sketcher.Constraint("Equal", 13, 14),
    Sketcher.Constraint("Equal", 14, 15),
    Sketcher.Constraint("Equal", 15, 16),
    Sketcher.Constraint("Equal", 16, 17),
    Sketcher.Constraint("Equal", 17, 18),
    Sketcher.Constraint("Horizontal", 0, 3, 1, 3),
    Sketcher.Constraint("Horizontal", 2, 3, 3, 3),
    Sketcher.Constraint("Horizontal", 4, 3, 5, 3),
    Sketcher.Constraint("Horizontal", 6, 3, 7, 3),
    Sketcher.Constraint("Horizontal", 1, 3, 8, 3),
    Sketcher.Constraint("Horizontal", 8, 3, 9, 3),
    Sketcher.Constraint("Horizontal", 7, 3, 10, 3),
    Sketcher.Constraint("Horizontal", 10, 3, 11, 3),
    Sketcher.Constraint("Horizontal", 9, 3, 12, 3),
    Sketcher.Constraint("Horizontal", 12, 3, 14, 3),
    Sketcher.Constraint("Horizontal", 13, 3, 15, 3),
    Sketcher.Constraint("Horizontal", 11, 3, 16, 3),
    Sketcher.Constraint("Horizontal", 16, 3, 18, 3),
    Sketcher.Constraint("Vertical", 1, 3, 2, 3),
    Sketcher.Constraint("Vertical", 0, 3, 3, 3),
    Sketcher.Constraint("Vertical", 2, 3, 4, 3),
    Sketcher.Constraint("Vertical", 3, 3, 5, 3),
    Sketcher.Constraint("Vertical", 5, 3, 6, 3),
    Sketcher.Constraint("Vertical", 4, 3, 7, 3),
    Sketcher.Constraint("Vertical", 8, 3, 10, 3),
    Sketcher.Constraint("Vertical", 9, 3, 11, 3),
    Sketcher.Constraint("Vertical", 6, 3, 13, 3),
    Sketcher.Constraint("Vertical", 7, 3, 15, 3),
    Sketcher.Constraint("Vertical", 12, 3, 16, 3),
    Sketcher.Constraint("Vertical", 13, 3, 17, 3),
    Sketcher.Constraint("Vertical", 14, 3, 18, 3),
    Sketcher.Constraint("Diameter", 0, Q("4 mm")),
    Sketcher.Constraint("DistanceX", 0, 3, 1, 3, Q("15 mm")),
    Sketcher.Constraint("DistanceY", 1, 3, 4, 3, Q("15 mm")),
    Sketcher.Constraint("DistanceY", 6, 3, 0, 3, Q("15 mm")),
    Sketcher.Constraint("DistanceX", 12, 3, 0, 3, Q("15 mm")),
    Sketcher.Constraint("DistanceX", 1, 3, 14, 3, Q("15 mm")),
    Sketcher.Constraint("DistanceY", 17, 3, 6, 3, Q("15 mm")),
    Sketcher.Constraint("DistanceY", 2, 3, -1, 1, Q("58 mm")),
    Sketcher.Constraint("DistanceY", 13, 3, -1, 1, Q("88 mm")),
    Sketcher.Constraint("DistanceX", -1, 1, 0, 3, Q("1.2 mm")),
    Sketcher.Constraint("DistanceY", 0, 3, -1, 1, Q("65.5 mm")),
    Sketcher.Constraint("DistanceX", 8, 3, -1, 1, Q("6.3 mm")),
    Sketcher.Constraint("DistanceX", -1, 1, 9, 3, Q("23.7 mm")),
])
pocket3 = body.newObject("PartDesign::Pocket", "Pocket002")
pocket3.Profile = sketch5
pocket3.Length = 10
doc.recompute()

fillet2 = body.newObject("PartDesign::Fillet", "Fillet001")
fillet2.Base = (pocket3, edges_at(pocket3, [
    (1.5, 68.7, 3),
    (1.5, 68.7, -149),
    (1.5, -51.3, -149),
    (1.5, -51.3, 3),
]))
fillet2.Radius = 10

doc.recompute()
